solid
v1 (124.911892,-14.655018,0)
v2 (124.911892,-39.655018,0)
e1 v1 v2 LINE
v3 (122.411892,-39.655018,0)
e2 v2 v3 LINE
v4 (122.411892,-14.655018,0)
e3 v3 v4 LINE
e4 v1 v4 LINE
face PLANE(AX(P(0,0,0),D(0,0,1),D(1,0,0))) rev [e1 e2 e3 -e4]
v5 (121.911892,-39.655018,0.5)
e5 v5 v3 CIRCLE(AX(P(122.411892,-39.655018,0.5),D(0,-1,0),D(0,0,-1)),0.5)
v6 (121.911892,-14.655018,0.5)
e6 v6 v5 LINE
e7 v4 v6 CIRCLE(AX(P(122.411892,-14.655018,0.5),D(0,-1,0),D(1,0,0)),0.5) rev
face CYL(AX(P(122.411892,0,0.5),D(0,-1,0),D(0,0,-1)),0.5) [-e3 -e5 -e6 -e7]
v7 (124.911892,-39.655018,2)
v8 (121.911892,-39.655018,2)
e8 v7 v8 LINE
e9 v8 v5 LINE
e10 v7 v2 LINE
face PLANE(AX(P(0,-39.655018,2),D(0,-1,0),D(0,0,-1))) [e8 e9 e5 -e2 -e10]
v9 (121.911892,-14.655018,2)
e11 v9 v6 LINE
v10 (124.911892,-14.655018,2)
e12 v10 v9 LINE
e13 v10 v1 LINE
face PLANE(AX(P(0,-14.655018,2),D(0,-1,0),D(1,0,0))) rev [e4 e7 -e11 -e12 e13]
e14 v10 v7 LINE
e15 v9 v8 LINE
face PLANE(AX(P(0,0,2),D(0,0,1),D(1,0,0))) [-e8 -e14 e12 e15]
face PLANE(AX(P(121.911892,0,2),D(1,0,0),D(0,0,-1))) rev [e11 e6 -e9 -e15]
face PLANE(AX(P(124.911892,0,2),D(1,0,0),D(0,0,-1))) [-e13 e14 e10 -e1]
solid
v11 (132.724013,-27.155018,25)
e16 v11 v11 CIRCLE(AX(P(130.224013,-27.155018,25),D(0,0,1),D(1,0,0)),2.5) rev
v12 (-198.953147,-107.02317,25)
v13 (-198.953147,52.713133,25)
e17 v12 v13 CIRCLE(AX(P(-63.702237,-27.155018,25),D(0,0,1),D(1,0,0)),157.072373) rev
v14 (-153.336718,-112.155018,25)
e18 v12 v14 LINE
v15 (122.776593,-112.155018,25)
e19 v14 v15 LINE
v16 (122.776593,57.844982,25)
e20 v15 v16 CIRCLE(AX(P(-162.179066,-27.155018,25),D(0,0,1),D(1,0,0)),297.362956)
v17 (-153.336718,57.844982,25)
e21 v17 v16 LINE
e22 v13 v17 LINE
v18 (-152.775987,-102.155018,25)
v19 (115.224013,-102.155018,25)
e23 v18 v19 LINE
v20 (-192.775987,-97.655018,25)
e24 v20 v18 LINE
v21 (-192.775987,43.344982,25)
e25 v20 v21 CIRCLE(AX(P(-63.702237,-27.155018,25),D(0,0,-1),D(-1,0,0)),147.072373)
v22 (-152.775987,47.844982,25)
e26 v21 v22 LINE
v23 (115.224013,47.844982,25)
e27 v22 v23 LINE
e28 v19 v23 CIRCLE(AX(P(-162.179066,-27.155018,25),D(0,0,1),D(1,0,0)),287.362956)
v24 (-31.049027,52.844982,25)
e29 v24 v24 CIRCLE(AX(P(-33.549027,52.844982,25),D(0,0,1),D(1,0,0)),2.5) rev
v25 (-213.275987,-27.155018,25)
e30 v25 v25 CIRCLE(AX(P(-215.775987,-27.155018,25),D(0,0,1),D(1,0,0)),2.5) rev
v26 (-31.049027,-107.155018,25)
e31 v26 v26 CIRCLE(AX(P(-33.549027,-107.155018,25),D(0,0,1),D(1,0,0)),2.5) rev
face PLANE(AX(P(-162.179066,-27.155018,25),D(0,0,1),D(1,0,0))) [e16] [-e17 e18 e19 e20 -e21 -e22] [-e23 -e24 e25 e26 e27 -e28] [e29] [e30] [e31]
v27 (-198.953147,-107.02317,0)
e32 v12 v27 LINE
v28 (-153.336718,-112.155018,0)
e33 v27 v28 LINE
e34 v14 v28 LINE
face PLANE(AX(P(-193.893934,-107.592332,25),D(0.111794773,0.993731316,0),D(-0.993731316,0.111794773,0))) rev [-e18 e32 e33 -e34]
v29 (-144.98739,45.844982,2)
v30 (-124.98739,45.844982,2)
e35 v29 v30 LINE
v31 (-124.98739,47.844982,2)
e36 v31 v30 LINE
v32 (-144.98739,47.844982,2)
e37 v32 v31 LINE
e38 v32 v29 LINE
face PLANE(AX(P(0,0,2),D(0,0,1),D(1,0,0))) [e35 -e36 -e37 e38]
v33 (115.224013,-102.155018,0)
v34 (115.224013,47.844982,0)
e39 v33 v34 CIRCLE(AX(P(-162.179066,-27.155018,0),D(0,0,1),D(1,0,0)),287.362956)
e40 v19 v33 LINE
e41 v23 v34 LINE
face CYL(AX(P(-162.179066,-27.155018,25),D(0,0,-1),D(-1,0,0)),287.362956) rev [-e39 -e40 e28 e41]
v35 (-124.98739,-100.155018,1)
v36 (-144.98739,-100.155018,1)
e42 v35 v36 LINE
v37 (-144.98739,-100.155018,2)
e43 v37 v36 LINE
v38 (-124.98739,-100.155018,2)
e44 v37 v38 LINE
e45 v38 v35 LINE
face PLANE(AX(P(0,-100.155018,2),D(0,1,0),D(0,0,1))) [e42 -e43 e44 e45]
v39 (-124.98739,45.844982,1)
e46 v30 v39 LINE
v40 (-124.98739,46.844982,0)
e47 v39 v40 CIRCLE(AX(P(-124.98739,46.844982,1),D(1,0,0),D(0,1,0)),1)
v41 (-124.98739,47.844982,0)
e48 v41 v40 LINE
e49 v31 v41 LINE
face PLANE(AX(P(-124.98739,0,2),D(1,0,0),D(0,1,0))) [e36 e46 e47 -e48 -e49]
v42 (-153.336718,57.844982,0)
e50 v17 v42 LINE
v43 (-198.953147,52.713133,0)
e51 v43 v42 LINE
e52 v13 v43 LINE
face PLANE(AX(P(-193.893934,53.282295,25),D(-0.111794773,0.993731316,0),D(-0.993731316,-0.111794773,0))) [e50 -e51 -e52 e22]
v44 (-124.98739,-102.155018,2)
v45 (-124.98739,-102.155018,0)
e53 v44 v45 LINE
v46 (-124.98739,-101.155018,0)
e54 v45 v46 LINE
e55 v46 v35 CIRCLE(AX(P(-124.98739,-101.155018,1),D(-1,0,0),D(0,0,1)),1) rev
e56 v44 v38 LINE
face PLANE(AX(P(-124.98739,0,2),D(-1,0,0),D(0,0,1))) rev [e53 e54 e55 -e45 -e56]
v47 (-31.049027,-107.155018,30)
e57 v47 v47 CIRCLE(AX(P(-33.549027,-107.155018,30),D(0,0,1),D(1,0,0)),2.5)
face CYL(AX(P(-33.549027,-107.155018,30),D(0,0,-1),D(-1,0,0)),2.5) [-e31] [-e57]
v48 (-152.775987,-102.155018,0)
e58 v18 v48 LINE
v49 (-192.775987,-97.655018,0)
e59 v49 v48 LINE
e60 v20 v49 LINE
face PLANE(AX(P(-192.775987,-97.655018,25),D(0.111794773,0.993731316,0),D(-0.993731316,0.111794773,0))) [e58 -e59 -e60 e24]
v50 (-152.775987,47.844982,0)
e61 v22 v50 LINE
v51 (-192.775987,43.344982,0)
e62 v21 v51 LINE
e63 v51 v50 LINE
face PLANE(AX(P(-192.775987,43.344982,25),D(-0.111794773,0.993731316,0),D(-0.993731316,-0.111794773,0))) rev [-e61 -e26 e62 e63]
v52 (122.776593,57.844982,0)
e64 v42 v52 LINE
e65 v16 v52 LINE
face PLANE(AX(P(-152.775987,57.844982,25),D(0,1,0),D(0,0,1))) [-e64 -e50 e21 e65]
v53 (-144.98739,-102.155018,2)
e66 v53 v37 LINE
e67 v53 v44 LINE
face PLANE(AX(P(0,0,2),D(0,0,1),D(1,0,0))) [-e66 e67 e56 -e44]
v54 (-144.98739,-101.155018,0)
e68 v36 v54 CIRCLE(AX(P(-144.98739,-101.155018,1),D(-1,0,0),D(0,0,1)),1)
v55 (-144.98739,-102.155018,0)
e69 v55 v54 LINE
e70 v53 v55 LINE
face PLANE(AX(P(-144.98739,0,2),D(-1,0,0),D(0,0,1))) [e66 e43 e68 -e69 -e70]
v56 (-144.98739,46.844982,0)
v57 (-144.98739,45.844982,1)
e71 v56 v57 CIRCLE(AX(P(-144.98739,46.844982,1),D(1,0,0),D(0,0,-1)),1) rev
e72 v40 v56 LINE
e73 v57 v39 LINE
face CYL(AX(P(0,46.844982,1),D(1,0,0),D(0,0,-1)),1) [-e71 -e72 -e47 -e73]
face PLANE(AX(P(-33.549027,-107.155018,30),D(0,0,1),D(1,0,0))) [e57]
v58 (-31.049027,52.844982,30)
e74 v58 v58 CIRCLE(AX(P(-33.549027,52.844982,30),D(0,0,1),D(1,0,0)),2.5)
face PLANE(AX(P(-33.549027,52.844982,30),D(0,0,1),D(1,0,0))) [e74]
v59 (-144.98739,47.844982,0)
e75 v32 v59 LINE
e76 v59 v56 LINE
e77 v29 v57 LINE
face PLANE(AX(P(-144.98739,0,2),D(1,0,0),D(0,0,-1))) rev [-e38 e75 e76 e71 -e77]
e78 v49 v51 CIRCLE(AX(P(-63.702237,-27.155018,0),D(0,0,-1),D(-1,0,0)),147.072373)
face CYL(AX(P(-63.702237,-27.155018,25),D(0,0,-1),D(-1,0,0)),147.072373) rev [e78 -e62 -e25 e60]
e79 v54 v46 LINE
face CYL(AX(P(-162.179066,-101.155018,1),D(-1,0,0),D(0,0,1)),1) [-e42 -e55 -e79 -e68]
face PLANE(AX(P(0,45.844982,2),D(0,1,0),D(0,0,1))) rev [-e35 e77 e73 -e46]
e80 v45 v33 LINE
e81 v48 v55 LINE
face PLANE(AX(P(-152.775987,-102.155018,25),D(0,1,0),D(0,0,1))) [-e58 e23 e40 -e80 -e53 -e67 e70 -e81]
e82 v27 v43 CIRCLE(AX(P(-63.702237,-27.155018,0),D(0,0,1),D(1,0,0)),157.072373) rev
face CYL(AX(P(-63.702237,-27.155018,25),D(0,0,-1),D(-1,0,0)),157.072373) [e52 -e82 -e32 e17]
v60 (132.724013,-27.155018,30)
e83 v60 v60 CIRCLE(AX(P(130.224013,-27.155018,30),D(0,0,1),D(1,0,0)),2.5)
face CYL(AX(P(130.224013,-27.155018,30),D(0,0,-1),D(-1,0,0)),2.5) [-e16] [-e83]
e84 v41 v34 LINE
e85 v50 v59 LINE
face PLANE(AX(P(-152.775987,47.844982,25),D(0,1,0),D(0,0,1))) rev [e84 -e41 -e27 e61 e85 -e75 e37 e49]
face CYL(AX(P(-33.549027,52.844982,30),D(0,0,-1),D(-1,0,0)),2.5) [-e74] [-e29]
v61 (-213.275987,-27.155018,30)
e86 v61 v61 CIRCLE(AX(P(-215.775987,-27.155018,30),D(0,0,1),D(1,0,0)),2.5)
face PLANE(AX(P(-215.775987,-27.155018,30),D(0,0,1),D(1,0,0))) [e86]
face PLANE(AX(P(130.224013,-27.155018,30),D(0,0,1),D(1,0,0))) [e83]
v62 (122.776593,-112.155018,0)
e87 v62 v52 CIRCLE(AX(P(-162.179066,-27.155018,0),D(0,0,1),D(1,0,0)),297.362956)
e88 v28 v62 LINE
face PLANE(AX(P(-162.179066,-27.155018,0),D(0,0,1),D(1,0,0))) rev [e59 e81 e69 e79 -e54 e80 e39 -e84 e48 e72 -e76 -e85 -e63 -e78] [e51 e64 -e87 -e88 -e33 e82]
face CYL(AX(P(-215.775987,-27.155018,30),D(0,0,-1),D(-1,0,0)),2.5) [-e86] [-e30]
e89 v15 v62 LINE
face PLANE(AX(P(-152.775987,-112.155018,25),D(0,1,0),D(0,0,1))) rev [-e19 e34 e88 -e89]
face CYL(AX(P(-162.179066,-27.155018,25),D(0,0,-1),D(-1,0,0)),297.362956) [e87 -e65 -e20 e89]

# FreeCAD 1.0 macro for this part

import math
import FreeCAD as App
import Part
import Sketcher

V = App.Vector


def edges_at(feature, points):
    """Names of the edges that pass closest to the given points."""
    edges = feature.Shape.Edges
    near = lambda p: min(range(len(edges)), key=lambda i: edges[i].distToShape(Part.Vertex(*p))[0])
    return sorted({f"Edge{near(p) + 1}" for p in points})


def add_polygon(sketch, points):
    """Adds a closed chain of lines whose ends are joined by coincident constraints."""
    first, n = sketch.GeometryCount, len(points)
    for a, b in zip(points, points[1:] + points[:1]):
        sketch.addGeometry(Part.LineSegment(App.Vector(*a, 0), App.Vector(*b, 0)), False)
    for i in range(n):
        sketch.addConstraint(Sketcher.Constraint("Coincident", first + i, 2, first + (i + 1) % n, 1))

doc = App.newDocument("Part")
body = doc.addObject("PartDesign::Body", "Body")

# Sketch on XY plane
sketch1 = doc.addObject("Sketcher::SketchObject", "Sketch")
body.addObject(sketch1)
sketch1.AttachmentSupport = (doc.XY_Plane, [""])
sketch1.MapMode = "FlatFace"
sketch1.addGeometry(Part.LineSegment(V(-153, 58, 0), V(-199, 53, 0)), False)
sketch1.addGeometry(Part.ArcOfCircle(Part.Circle(V(-64, -27, 0), V(0, 0, 1), 157), math.radians(149), math.radians(211)), False)
sketch1.addGeometry(Part.LineSegment(V(-199, -107, 0), V(-153, -112, 0)), False)
sketch1.addGeometry(Part.LineSegment(V(-153, -112, 0), V(123, -112, 0)), False)
sketch1.addGeometry(Part.ArcOfCircle(Part.Circle(V(-162, -27, 0), V(0, 0, 1), 297), math.radians(-17), math.radians(17)), False)
sketch1.addGeometry(Part.LineSegment(V(123, 58, 0), V(-153, 58, 0)), False)
sketch1.addGeometry(Part.LineSegment(V(-193, 43, 0), V(-153, 48, 0)), False)
sketch1.addGeometry(Part.LineSegment(V(-153, 48, 0), V(115, 48, 0)), False)
sketch1.addGeometry(Part.ArcOfCircle(Part.Circle(V(-162, -27, 0), V(0, 0, 1), 287), math.radians(-15), math.radians(15)), False)
sketch1.addGeometry(Part.LineSegment(V(115, -102, 0), V(-153, -102, 0)), False)
sketch1.addGeometry(Part.LineSegment(V(-153, -102, 0), V(-193, -98, 0)), False)
sketch1.addGeometry(Part.ArcOfCircle(Part.Circle(V(-64, -27, 0), V(0, 0, 1), 147), math.radians(151), math.radians(209)), False)
sketch1.addConstraint(Sketcher.Constraint("Coincident", 0, 2, 1, 1))
sketch1.addConstraint(Sketcher.Constraint("Coincident", 1, 2, 2, 1))
sketch1.addConstraint(Sketcher.Constraint("Coincident", 2, 2, 3, 1))
sketch1.addConstraint(Sketcher.Constraint("Coincident", 3, 2, 4, 1))
sketch1.addConstraint(Sketcher.Constraint("Coincident", 4, 2, 5, 1))
sketch1.addConstraint(Sketcher.Constraint("Coincident", 5, 2, 0, 1))
sketch1.addConstraint(Sketcher.Constraint("Coincident", 6, 2, 7, 1))
sketch1.addConstraint(Sketcher.Constraint("Coincident", 7, 2, 8, 2))
sketch1.addConstraint(Sketcher.Constraint("Coincident", 8, 1, 9, 1))
sketch1.addConstraint(Sketcher.Constraint("Coincident", 9, 2, 10, 1))
sketch1.addConstraint(Sketcher.Constraint("Coincident", 10, 2, 11, 2))
sketch1.addConstraint(Sketcher.Constraint("Coincident", 11, 1, 6, 1))
sketch1.addConstraint(Sketcher.Constraint("Horizontal", 3))
sketch1.addConstraint(Sketcher.Constraint("Horizontal", 5))
sketch1.addConstraint(Sketcher.Constraint("Horizontal", 7))
sketch1.addConstraint(Sketcher.Constraint("Horizontal", 9))
sketch1.addConstraint(Sketcher.Constraint("Coincident", 8, 3, 4, 3))
sketch1.addConstraint(Sketcher.Constraint("Coincident", 11, 3, 1, 3))
sketch1.addConstraint(Sketcher.Constraint("Parallel", 0, 6))
sketch1.addConstraint(Sketcher.Constraint("Parallel", 2, 10))
sketch1.addConstraint(Sketcher.Constraint("Horizontal", 1, 3, 4, 3))
sketch1.addConstraint(Sketcher.Constraint("Vertical", 0, 2, 1, 2))
sketch1.addConstraint(Sketcher.Constraint("Vertical", 3, 2, 4, 2))
sketch1.addConstraint(Sketcher.Constraint("Vertical", 2, 2, 5, 2))
sketch1.addConstraint(Sketcher.Constraint("Vertical", 7, 2, 8, 1))
sketch1.addConstraint(Sketcher.Constraint("Vertical", 6, 2, 9, 2))
sketch1.addConstraint(Sketcher.Constraint("DistanceX", 7, 1, 7, 2, 268.0))
sketch1.addConstraint(Sketcher.Constraint("DistanceY", 2, 2, 8, 3, 85.0))
sketch1.addConstraint(Sketcher.Constraint("DistanceY", 6, 2, 5, 2, 10.0))
sketch1.addConstraint(Sketcher.Constraint("DistanceX", 10, 2, 9, 2, 40.0))
sketch1.addConstraint(Sketcher.Constraint("DistanceY", 9, 2, 10, 2, 4.5))
sketch1.addConstraint(Sketcher.Constraint("Radius", 1, 157.072373))
sketch1.addConstraint(Sketcher.Constraint("Radius", 4, 297.362956))
sketch1.addConstraint(Sketcher.Constraint("Radius", 8, 287.362956))
sketch1.addConstraint(Sketcher.Constraint("Radius", 11, 147.072373))
sketch1.addConstraint(Sketcher.Constraint("DistanceX", 3, 1, 3, 2, 276.113311))
sketch1.addConstraint(Sketcher.Constraint("DistanceY", 1, 3, -1, 1, 27.155018))
sketch1.addConstraint(Sketcher.Constraint("DistanceX", 2, 2, -1, 1, 153.336718))
pad1 = doc.addObject("PartDesign::Pad", "Pad")
body.addObject(pad1)
pad1.Profile = sketch1
pad1.Length = 25

# Sketch on XY plane
sketch2 = doc.addObject("Sketcher::SketchObject", "Sketch001")
body.addObject(sketch2)
sketch2.AttachmentSupport = (doc.XY_Plane, [""])
sketch2.MapMode = "FlatFace"
add_polygon(sketch2, [(-145, -100.2), (-145, -102.2), (-125, -102.2), (-125, -100.2)])  # lines 0-3
sketch2.addConstraint(Sketcher.Constraint("Vertical", 0))
sketch2.addConstraint(Sketcher.Constraint("Horizontal", 1))
sketch2.addConstraint(Sketcher.Constraint("Vertical", 2))
sketch2.addConstraint(Sketcher.Constraint("Horizontal", 3))
sketch2.addConstraint(Sketcher.Constraint("DistanceX", 1, 1, 1, 2, 20.0))
sketch2.addConstraint(Sketcher.Constraint("DistanceY", 0, 2, 0, 1, 2.0))
sketch2.addConstraint(Sketcher.Constraint("DistanceX", 0, 2, -1, 1, 144.98739))
sketch2.addConstraint(Sketcher.Constraint("DistanceY", 0, 2, -1, 1, 102.155018))
pad2 = doc.addObject("PartDesign::Pad", "Pad001")
body.addObject(pad2)
pad2.Profile = sketch2
pad2.Length = 2

# Sketch on XY plane
sketch3 = doc.addObject("Sketcher::SketchObject", "Sketch002")
body.addObject(sketch3)
sketch3.AttachmentSupport = (doc.XY_Plane, [""])
sketch3.MapMode = "FlatFace"
add_polygon(sketch3, [(-145, 47.8), (-145, 45.8), (-125, 45.8), (-125, 47.8)])  # lines 0-3
sketch3.addConstraint(Sketcher.Constraint("Vertical", 0))
sketch3.addConstraint(Sketcher.Constraint("Horizontal", 1))
sketch3.addConstraint(Sketcher.Constraint("Vertical", 2))
sketch3.addConstraint(Sketcher.Constraint("Horizontal", 3))
sketch3.addConstraint(Sketcher.Constraint("DistanceX", 1, 1, 1, 2, 20.0))
sketch3.addConstraint(Sketcher.Constraint("DistanceY", 0, 2, 0, 1, 2.0))
sketch3.addConstraint(Sketcher.Constraint("DistanceX", 0, 2, -1, 1, 144.98739))
sketch3.addConstraint(Sketcher.Constraint("DistanceY", -1, 1, 0, 2, 45.844982))
pad3 = doc.addObject("PartDesign::Pad", "Pad002")
body.addObject(pad3)
pad3.Profile = sketch3
pad3.Length = 2
doc.recompute()

fillet = doc.addObject("PartDesign::Fillet", "Fillet")
body.addObject(fillet)
fillet.Base = (pad3, edges_at(pad3, [(-134.987, 45.845, 0)]))
fillet.Radius = 1
doc.recompute()

fillet2 = doc.addObject("PartDesign::Fillet", "Fillet001")
body.addObject(fillet2)
fillet2.Base = (fillet, edges_at(fillet, [(-134.987, -100.155, 0)]))
fillet2.Radius = 1

# Sketch on XY plane
sketch4 = doc.addObject("Sketcher::SketchObject", "Sketch003")
body.addObject(sketch4)
sketch4.AttachmentSupport = (doc.XY_Plane, [""])
sketch4.MapMode = "FlatFace"
sketch4.addGeometry(Part.Circle(V(-33.5, -107.2, 0), V(0, 0, 1), 2.5), False)
sketch4.addConstraint(Sketcher.Constraint("Diameter", 0, 5.0))
sketch4.addConstraint(Sketcher.Constraint("DistanceY", 0, 3, -1, 1, 107.155018))
sketch4.addConstraint(Sketcher.Constraint("DistanceX", 0, 3, -1, 1, 33.549027))
pad4 = doc.addObject("PartDesign::Pad", "Pad003")
body.addObject(pad4)
pad4.Profile = sketch4
pad4.Length = 30

# Sketch on XY plane
sketch5 = doc.addObject("Sketcher::SketchObject", "Sketch004")
body.addObject(sketch5)
sketch5.AttachmentSupport = (doc.XY_Plane, [""])
sketch5.MapMode = "FlatFace"
sketch5.addGeometry(Part.Circle(V(-33.5, 52.8, 0), V(0, 0, 1), 2.5), False)
sketch5.addConstraint(Sketcher.Constraint("Diameter", 0, 5.0))
sketch5.addConstraint(Sketcher.Constraint("DistanceY", -1, 1, 0, 3, 52.844982))
sketch5.addConstraint(Sketcher.Constraint("DistanceX", 0, 3, -1, 1, 33.549027))
pad5 = doc.addObject("PartDesign::Pad", "Pad004")
body.addObject(pad5)
pad5.Profile = sketch5
pad5.Length = 30

# Sketch on XY plane
sketch6 = doc.addObject("Sketcher::SketchObject", "Sketch005")
body.addObject(sketch6)
sketch6.AttachmentSupport = (doc.XY_Plane, [""])
sketch6.MapMode = "FlatFace"
sketch6.addGeometry(Part.Circle(V(130.2, -27.2, 0), V(0, 0, 1), 2.5), False)
sketch6.addConstraint(Sketcher.Constraint("Diameter", 0, 5.0))
sketch6.addConstraint(Sketcher.Constraint("DistanceY", 0, 3, -1, 1, 27.155018))
sketch6.addConstraint(Sketcher.Constraint("DistanceX", -1, 1, 0, 3, 130.224013))
pad6 = doc.addObject("PartDesign::Pad", "Pad005")
body.addObject(pad6)
pad6.Profile = sketch6
pad6.Length = 30

# Sketch on XY plane
sketch7 = doc.addObject("Sketcher::SketchObject", "Sketch006")
body.addObject(sketch7)
sketch7.AttachmentSupport = (doc.XY_Plane, [""])
sketch7.MapMode = "FlatFace"
sketch7.addGeometry(Part.Circle(V(-215.8, -27.2, 0), V(0, 0, 1), 2.5), False)
sketch7.addConstraint(Sketcher.Constraint("Diameter", 0, 5.0))
sketch7.addConstraint(Sketcher.Constraint("DistanceY", 0, 3, -1, 1, 27.155018))
sketch7.addConstraint(Sketcher.Constraint("DistanceX", 0, 3, -1, 1, 215.775987))
pad7 = doc.addObject("PartDesign::Pad", "Pad006")
body.addObject(pad7)
pad7.Profile = sketch7
pad7.Length = 30
body2 = doc.addObject("PartDesign::Body", "Body001")

# Sketch on XY plane
sketch8 = doc.addObject("Sketcher::SketchObject", "Sketch007")
body2.addObject(sketch8)
sketch8.AttachmentSupport = (doc.getObject("XY_Plane001"), [""])
sketch8.MapMode = "FlatFace"
add_polygon(sketch8, [(121.9, -14.7), (121.9, -39.7), (124.9, -39.7), (124.9, -14.7)])  # lines 0-3
sketch8.addConstraint(Sketcher.Constraint("Vertical", 0))
sketch8.addConstraint(Sketcher.Constraint("Horizontal", 1))
sketch8.addConstraint(Sketcher.Constraint("Vertical", 2))
sketch8.addConstraint(Sketcher.Constraint("Horizontal", 3))
sketch8.addConstraint(Sketcher.Constraint("DistanceX", 1, 1, 1, 2, 3.0))
sketch8.addConstraint(Sketcher.Constraint("DistanceY", 0, 2, 0, 1, 25.0))
sketch8.addConstraint(Sketcher.Constraint("DistanceY", 0, 2, -1, 1, 39.655018))
sketch8.addConstraint(Sketcher.Constraint("DistanceX", -1, 1, 0, 2, 121.911892))
pad8 = doc.addObject("PartDesign::Pad", "Pad007")
body2.addObject(pad8)
pad8.Profile = sketch8
pad8.Length = 2
doc.recompute()

fillet3 = doc.addObject("PartDesign::Fillet", "Fillet002")
body2.addObject(fillet3)
fillet3.Base = (pad8, edges_at(pad8, [(121.912, -27.155, 0)]))
fillet3.Radius = 0.5

doc.recompute()
